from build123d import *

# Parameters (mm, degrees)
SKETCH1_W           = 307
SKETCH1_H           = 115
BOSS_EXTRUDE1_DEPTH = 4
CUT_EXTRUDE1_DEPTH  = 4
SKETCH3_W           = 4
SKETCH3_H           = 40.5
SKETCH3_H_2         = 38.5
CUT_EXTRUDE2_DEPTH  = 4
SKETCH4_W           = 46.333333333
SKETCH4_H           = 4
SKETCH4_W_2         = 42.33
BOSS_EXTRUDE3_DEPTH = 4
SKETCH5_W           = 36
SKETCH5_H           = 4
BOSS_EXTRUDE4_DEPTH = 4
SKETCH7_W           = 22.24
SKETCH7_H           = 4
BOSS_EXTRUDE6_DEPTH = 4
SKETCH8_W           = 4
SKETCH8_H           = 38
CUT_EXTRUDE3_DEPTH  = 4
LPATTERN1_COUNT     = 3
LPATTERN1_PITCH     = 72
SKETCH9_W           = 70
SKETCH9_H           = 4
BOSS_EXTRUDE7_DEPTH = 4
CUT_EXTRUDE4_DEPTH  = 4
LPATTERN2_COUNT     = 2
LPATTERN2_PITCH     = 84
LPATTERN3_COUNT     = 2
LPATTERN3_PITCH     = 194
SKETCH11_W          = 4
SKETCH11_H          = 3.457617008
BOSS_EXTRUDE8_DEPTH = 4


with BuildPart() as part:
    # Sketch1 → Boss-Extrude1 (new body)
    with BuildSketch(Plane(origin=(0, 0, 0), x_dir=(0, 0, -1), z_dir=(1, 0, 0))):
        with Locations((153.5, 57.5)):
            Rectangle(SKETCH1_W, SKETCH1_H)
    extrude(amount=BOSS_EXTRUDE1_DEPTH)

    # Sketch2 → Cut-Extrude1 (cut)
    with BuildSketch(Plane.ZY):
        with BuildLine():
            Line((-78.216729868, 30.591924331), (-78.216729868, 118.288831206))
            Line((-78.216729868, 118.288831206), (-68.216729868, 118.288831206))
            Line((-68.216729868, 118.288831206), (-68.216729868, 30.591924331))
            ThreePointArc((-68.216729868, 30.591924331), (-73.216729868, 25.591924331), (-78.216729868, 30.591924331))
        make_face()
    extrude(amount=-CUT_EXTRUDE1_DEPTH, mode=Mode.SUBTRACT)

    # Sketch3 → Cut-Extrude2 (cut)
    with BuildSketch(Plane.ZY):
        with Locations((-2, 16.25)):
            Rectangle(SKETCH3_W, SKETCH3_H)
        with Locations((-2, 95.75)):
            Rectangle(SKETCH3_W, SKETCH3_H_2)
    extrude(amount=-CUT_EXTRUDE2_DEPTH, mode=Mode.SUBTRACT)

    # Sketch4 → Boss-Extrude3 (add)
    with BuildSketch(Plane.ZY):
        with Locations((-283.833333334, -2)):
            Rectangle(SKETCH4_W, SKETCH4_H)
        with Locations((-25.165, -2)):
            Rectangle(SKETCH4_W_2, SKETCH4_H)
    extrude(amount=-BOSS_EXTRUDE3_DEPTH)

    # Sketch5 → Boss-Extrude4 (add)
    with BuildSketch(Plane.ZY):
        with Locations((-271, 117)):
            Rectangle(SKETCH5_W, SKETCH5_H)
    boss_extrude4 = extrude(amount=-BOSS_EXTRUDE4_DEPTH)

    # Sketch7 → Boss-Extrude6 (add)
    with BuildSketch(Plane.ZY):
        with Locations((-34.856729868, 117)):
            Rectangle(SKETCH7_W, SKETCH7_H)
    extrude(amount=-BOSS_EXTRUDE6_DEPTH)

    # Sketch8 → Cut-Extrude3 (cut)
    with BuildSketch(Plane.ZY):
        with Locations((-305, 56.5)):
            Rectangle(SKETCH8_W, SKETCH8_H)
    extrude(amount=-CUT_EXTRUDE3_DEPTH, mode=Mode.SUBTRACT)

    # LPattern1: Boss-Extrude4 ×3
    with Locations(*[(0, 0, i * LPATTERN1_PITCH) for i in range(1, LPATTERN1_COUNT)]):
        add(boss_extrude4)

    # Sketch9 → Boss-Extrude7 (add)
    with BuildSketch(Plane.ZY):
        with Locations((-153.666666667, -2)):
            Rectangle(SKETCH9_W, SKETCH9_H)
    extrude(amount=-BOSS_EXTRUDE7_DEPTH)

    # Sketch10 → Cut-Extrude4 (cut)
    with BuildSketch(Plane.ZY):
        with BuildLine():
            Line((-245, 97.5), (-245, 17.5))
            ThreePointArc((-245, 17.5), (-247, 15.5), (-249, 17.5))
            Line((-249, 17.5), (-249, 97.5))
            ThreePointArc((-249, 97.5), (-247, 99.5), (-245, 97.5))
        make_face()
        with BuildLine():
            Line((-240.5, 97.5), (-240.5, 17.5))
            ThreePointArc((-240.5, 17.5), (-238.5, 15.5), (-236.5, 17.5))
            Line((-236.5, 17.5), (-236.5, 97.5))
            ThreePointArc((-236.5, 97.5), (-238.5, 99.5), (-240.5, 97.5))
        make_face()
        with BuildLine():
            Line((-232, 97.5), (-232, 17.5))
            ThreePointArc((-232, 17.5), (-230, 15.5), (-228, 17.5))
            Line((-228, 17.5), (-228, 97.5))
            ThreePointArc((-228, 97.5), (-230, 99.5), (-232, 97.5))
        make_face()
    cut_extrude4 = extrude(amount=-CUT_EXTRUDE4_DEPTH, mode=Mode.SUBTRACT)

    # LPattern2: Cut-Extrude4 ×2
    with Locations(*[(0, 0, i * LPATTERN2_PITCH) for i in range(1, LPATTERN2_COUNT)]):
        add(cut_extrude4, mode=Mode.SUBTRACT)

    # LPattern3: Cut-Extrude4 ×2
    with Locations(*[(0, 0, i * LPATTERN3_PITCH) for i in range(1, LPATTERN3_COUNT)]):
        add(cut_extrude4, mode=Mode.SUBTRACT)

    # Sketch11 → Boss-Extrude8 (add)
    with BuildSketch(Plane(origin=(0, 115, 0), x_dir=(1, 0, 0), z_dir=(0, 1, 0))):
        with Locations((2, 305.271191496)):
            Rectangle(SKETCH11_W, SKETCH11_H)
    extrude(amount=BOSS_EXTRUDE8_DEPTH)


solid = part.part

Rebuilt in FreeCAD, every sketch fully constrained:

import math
import FreeCAD as App
import Part
import Sketcher
from FreeCAD import Vector

doc = App.newDocument("Part")
body = doc.addObject("PartDesign::Body", "Body")

sketch1 = body.newObject("Sketcher::SketchObject", "Sketch")
sketch1.AttachmentSupport = (doc.getObject("YZ_Plane"), [""])
sketch1.MapMode = "FlatFace"
sketch1.addGeometry(Part.LineSegment(Vector(115, 0, 0), Vector(0, 0, 0)), False)
sketch1.addGeometry(Part.LineSegment(Vector(0, 0, 0), Vector(0, -307, 0)), False)
sketch1.addGeometry(Part.LineSegment(Vector(0, -307, 0), Vector(115, -307, 0)), False)
sketch1.addGeometry(Part.LineSegment(Vector(115, -307, 0), Vector(115, 0, 0)), False)
sketch1.addConstraint(Sketcher.Constraint("Coincident", 0, 2, 1, 1))
sketch1.addConstraint(Sketcher.Constraint("Coincident", 1, 2, 2, 1))
sketch1.addConstraint(Sketcher.Constraint("Coincident", 2, 2, 3, 1))
sketch1.addConstraint(Sketcher.Constraint("Coincident", 3, 2, 0, 1))
sketch1.addConstraint(Sketcher.Constraint("Horizontal", 0))
sketch1.addConstraint(Sketcher.Constraint("Vertical", 1))
sketch1.addConstraint(Sketcher.Constraint("Horizontal", 2))
sketch1.addConstraint(Sketcher.Constraint("Vertical", 3))
sketch1.addConstraint(Sketcher.Constraint("Coincident", 0, 2, -1, 1))
sketch1.addConstraint(Sketcher.Constraint("DistanceX", 0, 2, 0, 1, 115.0))
sketch1.addConstraint(Sketcher.Constraint("DistanceY", 1, 2, 1, 1, 307.0))
pad1 = body.newObject("PartDesign::Pad", "Pad")
pad1.Profile = sketch1
pad1.Length = 4

sketch2 = body.newObject("Sketcher::SketchObject", "Sketch001")
sketch2.AttachmentSupport = (doc.getObject("YZ_Plane"), [""])
sketch2.MapMode = "FlatFace"
sketch2.addGeometry(Part.LineSegment(Vector(118, -78, 0), Vector(31, -78, 0)), False)
sketch2.addGeometry(Part.ArcOfCircle(Part.Circle(Vector(31, -73, 0), Vector(0, 0, 1), 5), math.radians(90), math.radians(270)), False)
sketch2.addGeometry(Part.LineSegment(Vector(31, -68, 0), Vector(118, -68, 0)), False)
sketch2.addGeometry(Part.LineSegment(Vector(118, -68, 0), Vector(118, -78, 0)), False)
sketch2.addConstraint(Sketcher.Constraint("Tangent", 0, 2, 1, 2))
sketch2.addConstraint(Sketcher.Constraint("Tangent", 1, 1, 2, 1))
sketch2.addConstraint(Sketcher.Constraint("Coincident", 2, 2, 3, 1))
sketch2.addConstraint(Sketcher.Constraint("Coincident", 3, 2, 0, 1))
sketch2.addConstraint(Sketcher.Constraint("Horizontal", 0))
sketch2.addConstraint(Sketcher.Constraint("Horizontal", 2))
sketch2.addConstraint(Sketcher.Constraint("Vertical", 3))
sketch2.addConstraint(Sketcher.Constraint("Radius", 1, 5.0))
sketch2.addConstraint(Sketcher.Constraint("DistanceX", 0, 2, 0, 1, 87.696907))
sketch2.addConstraint(Sketcher.Constraint("DistanceY", 1, 3, -1, 1, 73.21673))
sketch2.addConstraint(Sketcher.Constraint("DistanceX", -1, 1, 2, 2, 118.288831))
pocket1 = body.newObject("PartDesign::Pocket", "Pocket")
pocket1.Profile = sketch2
pocket1.Length = 4
pocket1.Reversed = True

sketch3 = body.newObject("Sketcher::SketchObject", "Sketch002")
sketch3.AttachmentSupport = (doc.getObject("YZ_Plane"), [""])
sketch3.MapMode = "FlatFace"
sketch3.addGeometry(Part.LineSegment(Vector(36.5, -4, 0), Vector(-4, -4, 0)), False)
sketch3.addGeometry(Part.LineSegment(Vector(-4, -4, 0), Vector(-4, 0, 0)), False)
sketch3.addGeometry(Part.LineSegment(Vector(-4, 0, 0), Vector(36.5, 0, 0)), False)
sketch3.addGeometry(Part.LineSegment(Vector(36.5, 0, 0), Vector(36.5, -4, 0)), False)
sketch3.addGeometry(Part.LineSegment(Vector(115, -4, 0), Vector(76.5, -4, 0)), False)
sketch3.addGeometry(Part.LineSegment(Vector(76.5, -4, 0), Vector(76.5, 0, 0)), False)
sketch3.addGeometry(Part.LineSegment(Vector(76.5, 0, 0), Vector(115, 0, 0)), False)
sketch3.addGeometry(Part.LineSegment(Vector(115, 0, 0), Vector(115, -4, 0)), False)
sketch3.addConstraint(Sketcher.Constraint("Coincident", 0, 2, 1, 1))
sketch3.addConstraint(Sketcher.Constraint("Coincident", 1, 2, 2, 1))
sketch3.addConstraint(Sketcher.Constraint("Coincident", 2, 2, 3, 1))
sketch3.addConstraint(Sketcher.Constraint("Coincident", 3, 2, 0, 1))
sketch3.addConstraint(Sketcher.Constraint("Coincident", 4, 2, 5, 1))
sketch3.addConstraint(Sketcher.Constraint("Coincident", 5, 2, 6, 1))
sketch3.addConstraint(Sketcher.Constraint("Coincident", 6, 2, 7, 1))
sketch3.addConstraint(Sketcher.Constraint("Coincident", 7, 2, 4, 1))
sketch3.addConstraint(Sketcher.Constraint("Horizontal", 0))
sketch3.addConstraint(Sketcher.Constraint("Vertical", 1))
sketch3.addConstraint(Sketcher.Constraint("Horizontal", 2))
sketch3.addConstraint(Sketcher.Constraint("Vertical", 3))
sketch3.addConstraint(Sketcher.Constraint("Horizontal", 4))
sketch3.addConstraint(Sketcher.Constraint("Vertical", 5))
sketch3.addConstraint(Sketcher.Constraint("Horizontal", 6))
sketch3.addConstraint(Sketcher.Constraint("Vertical", 7))
sketch3.addConstraint(Sketcher.Constraint("PointOnObject", 1, 2, -1))
sketch3.addConstraint(Sketcher.Constraint("PointOnObject", 5, 2, -1))
sketch3.addConstraint(Sketcher.Constraint("Horizontal", 3, 2, 4, 2))
sketch3.addConstraint(Sketcher.Constraint("DistanceY", 1, 1, 1, 2, 4.0))
sketch3.addConstraint(Sketcher.Constraint("DistanceX", 0, 2, 0, 1, 40.5))
sketch3.addConstraint(Sketcher.Constraint("DistanceX", 4, 2, 4, 1, 38.5))
sketch3.addConstraint(Sketcher.Constraint("DistanceX", 0, 2, -1, 1, 4.0))
sketch3.addConstraint(Sketcher.Constraint("DistanceX", -1, 1, 6, 2, 115.0))
pocket2 = body.newObject("PartDesign::Pocket", "Pocket001")
pocket2.Profile = sketch3
pocket2.Length = 4
pocket2.Reversed = True

sketch4 = body.newObject("Sketcher::SketchObject", "Sketch003")
sketch4.AttachmentSupport = (doc.getObject("YZ_Plane"), [""])
sketch4.MapMode = "FlatFace"
sketch4.addGeometry(Part.LineSegment(Vector(0, -307, 0), Vector(-4, -307, 0)), False)
sketch4.addGeometry(Part.LineSegment(Vector(-4, -307, 0), Vector(-4, -260.7, 0)), False)
sketch4.addGeometry(Part.LineSegment(Vector(-4, -260.7, 0), Vector(0, -260.7, 0)), False)
sketch4.addGeometry(Part.LineSegment(Vector(0, -260.7, 0), Vector(0, -307, 0)), False)
sketch4.addGeometry(Part.LineSegment(Vector(0, -46.3, 0), Vector(-4, -46.3, 0)), False)
sketch4.addGeometry(Part.LineSegment(Vector(-4, -46.3, 0), Vector(-4, -4, 0)), False)
sketch4.addGeometry(Part.LineSegment(Vector(-4, -4, 0), Vector(0, -4, 0)), False)
sketch4.addGeometry(Part.LineSegment(Vector(0, -4, 0), Vector(0, -46.3, 0)), False)
sketch4.addConstraint(Sketcher.Constraint("Coincident", 0, 2, 1, 1))
sketch4.addConstraint(Sketcher.Constraint("Coincident", 1, 2, 2, 1))
sketch4.addConstraint(Sketcher.Constraint("Coincident", 2, 2, 3, 1))
sketch4.addConstraint(Sketcher.Constraint("Coincident", 3, 2, 0, 1))
sketch4.addConstraint(Sketcher.Constraint("Coincident", 4, 2, 5, 1))
sketch4.addConstraint(Sketcher.Constraint("Coincident", 5, 2, 6, 1))
sketch4.addConstraint(Sketcher.Constraint("Coincident", 6, 2, 7, 1))
sketch4.addConstraint(Sketcher.Constraint("Coincident", 7, 2, 4, 1))
sketch4.addConstraint(Sketcher.Constraint("Horizontal", 0))
sketch4.addConstraint(Sketcher.Constraint("Vertical", 1))
sketch4.addConstraint(Sketcher.Constraint("Horizontal", 2))
sketch4.addConstraint(Sketcher.Constraint("Vertical", 3))
sketch4.addConstraint(Sketcher.Constraint("Horizontal", 4))
sketch4.addConstraint(Sketcher.Constraint("Vertical", 5))
sketch4.addConstraint(Sketcher.Constraint("Horizontal", 6))
sketch4.addConstraint(Sketcher.Constraint("Vertical", 7))
sketch4.addConstraint(Sketcher.Constraint("PointOnObject", 2, 2, -2))
sketch4.addConstraint(Sketcher.Constraint("PointOnObject", 6, 2, -2))
sketch4.addConstraint(Sketcher.Constraint("Vertical", 1, 2, 4, 2))
sketch4.addConstraint(Sketcher.Constraint("DistanceX", 0, 2, 0, 1, 4.0))
sketch4.addConstraint(Sketcher.Constraint("DistanceY", 0, 2, -1, 1, 307.0))
sketch4.addConstraint(Sketcher.Constraint("DistanceY", 5, 2, -1, 1, 4.0))
sketch4.addConstraint(Sketcher.Constraint("DistanceY", 5, 1, 5, 2, 42.33))
sketch4.addConstraint(Sketcher.Constraint("DistanceY", 1, 1, 1, 2, 46.333333))
pad2 = body.newObject("PartDesign::Pad", "Pad001")
pad2.Profile = sketch4
pad2.Length = 4

sketch5 = body.newObject("Sketcher::SketchObject", "Sketch004")
sketch5.AttachmentSupport = (doc.getObject("YZ_Plane"), [""])
sketch5.MapMode = "FlatFace"
sketch5.addGeometry(Part.LineSegment(Vector(119, -289, 0), Vector(115, -289, 0)), False)
sketch5.addGeometry(Part.LineSegment(Vector(115, -289, 0), Vector(115, -253, 0)), False)
sketch5.addGeometry(Part.LineSegment(Vector(115, -253, 0), Vector(119, -253, 0)), False)
sketch5.addGeometry(Part.LineSegment(Vector(119, -253, 0), Vector(119, -289, 0)), False)
sketch5.addConstraint(Sketcher.Constraint("Coincident", 0, 2, 1, 1))
sketch5.addConstraint(Sketcher.Constraint("Coincident", 1, 2, 2, 1))
sketch5.addConstraint(Sketcher.Constraint("Coincident", 2, 2, 3, 1))
sketch5.addConstraint(Sketcher.Constraint("Coincident", 3, 2, 0, 1))
sketch5.addConstraint(Sketcher.Constraint("Horizontal", 0))
sketch5.addConstraint(Sketcher.Constraint("Vertical", 1))
sketch5.addConstraint(Sketcher.Constraint("Horizontal", 2))
sketch5.addConstraint(Sketcher.Constraint("Vertical", 3))
sketch5.addConstraint(Sketcher.Constraint("DistanceX", 0, 2, 0, 1, 4.0))
sketch5.addConstraint(Sketcher.Constraint("DistanceY", 1, 1, 1, 2, 36.0))
sketch5.addConstraint(Sketcher.Constraint("DistanceX", -1, 1, 0, 2, 115.0))
sketch5.addConstraint(Sketcher.Constraint("DistanceY", 0, 2, -1, 1, 289.0))
pad3 = body.newObject("PartDesign::Pad", "Pad002")
pad3.Profile = sketch5
pad3.Length = 4

sketch6 = body.newObject("Sketcher::SketchObject", "Sketch005")
sketch6.AttachmentSupport = (doc.getObject("YZ_Plane"), [""])
sketch6.MapMode = "FlatFace"
sketch6.addGeometry(Part.LineSegment(Vector(119, -46, 0), Vector(115, -46, 0)), False)
sketch6.addGeometry(Part.LineSegment(Vector(115, -46, 0), Vector(115, -23.7, 0)), False)
sketch6.addGeometry(Part.LineSegment(Vector(115, -23.7, 0), Vector(119, -23.7, 0)), False)
sketch6.addGeometry(Part.LineSegment(Vector(119, -23.7, 0), Vector(119, -46, 0)), False)
sketch6.addConstraint(Sketcher.Constraint("Coincident", 0, 2, 1, 1))
sketch6.addConstraint(Sketcher.Constraint("Coincident", 1, 2, 2, 1))
sketch6.addConstraint(Sketcher.Constraint("Coincident", 2, 2, 3, 1))
sketch6.addConstraint(Sketcher.Constraint("Coincident", 3, 2, 0, 1))
sketch6.addConstraint(Sketcher.Constraint("Horizontal", 0))
sketch6.addConstraint(Sketcher.Constraint("Vertical", 1))
sketch6.addConstraint(Sketcher.Constraint("Horizontal", 2))
sketch6.addConstraint(Sketcher.Constraint("Vertical", 3))
sketch6.addConstraint(Sketcher.Constraint("DistanceX", 0, 2, 0, 1, 4.0))
sketch6.addConstraint(Sketcher.Constraint("DistanceX", -1, 1, 0, 2, 115.0))
sketch6.addConstraint(Sketcher.Constraint("DistanceY", 1, 1, 1, 2, 22.24))
sketch6.addConstraint(Sketcher.Constraint("DistanceY", 0, 2, -1, 1, 45.97673))
pad4 = body.newObject("PartDesign::Pad", "Pad003")
pad4.Profile = sketch6
pad4.Length = 4

sketch7 = body.newObject("Sketcher::SketchObject", "Sketch006")
sketch7.AttachmentSupport = (doc.getObject("YZ_Plane"), [""])
sketch7.MapMode = "FlatFace"
sketch7.addGeometry(Part.LineSegment(Vector(75.5, -307, 0), Vector(37.5, -307, 0)), False)
sketch7.addGeometry(Part.LineSegment(Vector(37.5, -307, 0), Vector(37.5, -303, 0)), False)
sketch7.addGeometry(Part.LineSegment(Vector(37.5, -303, 0), Vector(75.5, -303, 0)), False)
sketch7.addGeometry(Part.LineSegment(Vector(75.5, -303, 0), Vector(75.5, -307, 0)), False)
sketch7.addConstraint(Sketcher.Constraint("Coincident", 0, 2, 1, 1))
sketch7.addConstraint(Sketcher.Constraint("Coincident", 1, 2, 2, 1))
sketch7.addConstraint(Sketcher.Constraint("Coincident", 2, 2, 3, 1))
sketch7.addConstraint(Sketcher.Constraint("Coincident", 3, 2, 0, 1))
sketch7.addConstraint(Sketcher.Constraint("Horizontal", 0))
sketch7.addConstraint(Sketcher.Constraint("Vertical", 1))
sketch7.addConstraint(Sketcher.Constraint("Horizontal", 2))
sketch7.addConstraint(Sketcher.Constraint("Vertical", 3))
sketch7.addConstraint(Sketcher.Constraint("DistanceX", 0, 2, 0, 1, 38.0))
sketch7.addConstraint(Sketcher.Constraint("DistanceY", 1, 1, 1, 2, 4.0))
sketch7.addConstraint(Sketcher.Constraint("DistanceY", 0, 2, -1, 1, 307.0))
sketch7.addConstraint(Sketcher.Constraint("DistanceX", -1, 1, 0, 2, 37.5))
pocket3 = body.newObject("PartDesign::Pocket", "Pocket002")
pocket3.Profile = sketch7
pocket3.Length = 4
pocket3.Reversed = True
doc.recompute()

linearpattern = body.newObject("PartDesign::LinearPattern", "LinearPattern")
linearpattern.Originals = [pad3]
linearpattern.Direction = (doc.getObject("Z_Axis"), [""])
linearpattern.Mode = "offset"
linearpattern.Offset = 72
linearpattern.Occurrences = 3
body.Tip = linearpattern

sketch8 = body.newObject("Sketcher::SketchObject", "Sketch007")
sketch8.AttachmentSupport = (doc.getObject("YZ_Plane"), [""])
sketch8.MapMode = "FlatFace"
sketch8.addGeometry(Part.LineSegment(Vector(0, -188.7, 0), Vector(-4, -188.7, 0)), False)
sketch8.addGeometry(Part.LineSegment(Vector(-4, -188.7, 0), Vector(-4, -118.7, 0)), False)
sketch8.addGeometry(Part.LineSegment(Vector(-4, -118.7, 0), Vector(0, -118.7, 0)), False)
sketch8.addGeometry(Part.LineSegment(Vector(0, -118.7, 0), Vector(0, -188.7, 0)), False)
sketch8.addConstraint(Sketcher.Constraint("Coincident", 0, 2, 1, 1))
sketch8.addConstraint(Sketcher.Constraint("Coincident", 1, 2, 2, 1))
sketch8.addConstraint(Sketcher.Constraint("Coincident", 2, 2, 3, 1))
sketch8.addConstraint(Sketcher.Constraint("Coincident", 3, 2, 0, 1))
sketch8.addConstraint(Sketcher.Constraint("Horizontal", 0))
sketch8.addConstraint(Sketcher.Constraint("Vertical", 1))
sketch8.addConstraint(Sketcher.Constraint("Horizontal", 2))
sketch8.addConstraint(Sketcher.Constraint("Vertical", 3))
sketch8.addConstraint(Sketcher.Constraint("PointOnObject", 2, 2, -2))
sketch8.addConstraint(Sketcher.Constraint("DistanceX", 0, 2, 0, 1, 4.0))
sketch8.addConstraint(Sketcher.Constraint("DistanceY", 1, 1, 1, 2, 70.0))
sketch8.addConstraint(Sketcher.Constraint("DistanceY", 0, 2, -1, 1, 188.666667))
pad5 = body.newObject("PartDesign::Pad", "Pad004")
pad5.Profile = sketch8
pad5.Length = 4

sketch9 = body.newObject("Sketcher::SketchObject", "Sketch008")
sketch9.AttachmentSupport = (doc.getObject("YZ_Plane"), [""])
sketch9.MapMode = "FlatFace"
sketch9.addGeometry(Part.LineSegment(Vector(17.5, -245, 0), Vector(97.5, -245, 0)), False)
sketch9.addGeometry(Part.ArcOfCircle(Part.Circle(Vector(97.5, -247, 0), Vector(0, 0, 1), 2), math.radians(-90), math.radians(90)), False)
sketch9.addGeometry(Part.LineSegment(Vector(97.5, -249, 0), Vector(17.5, -249, 0)), False)
sketch9.addGeometry(Part.ArcOfCircle(Part.Circle(Vector(17.5, -247, 0), Vector(0, 0, 1), 2), math.radians(90), math.radians(270)), False)
sketch9.addGeometry(Part.LineSegment(Vector(97.5, -240.5, 0), Vector(17.5, -240.5, 0)), False)
sketch9.addGeometry(Part.ArcOfCircle(Part.Circle(Vector(17.5, -238.5, 0), Vector(0, 0, 1), 2), math.radians(90), math.radians(270)), False)
sketch9.addGeometry(Part.LineSegment(Vector(17.5, -236.5, 0), Vector(97.5, -236.5, 0)), False)
sketch9.addGeometry(Part.ArcOfCircle(Part.Circle(Vector(97.5, -238.5, 0), Vector(0, 0, 1), 2), math.radians(-90), math.radians(90)), False)
sketch9.addGeometry(Part.LineSegment(Vector(97.5, -232, 0), Vector(17.5, -232, 0)), False)
sketch9.addGeometry(Part.ArcOfCircle(Part.Circle(Vector(17.5, -230, 0), Vector(0, 0, 1), 2), math.radians(90), math.radians(270)), False)
sketch9.addGeometry(Part.LineSegment(Vector(17.5, -228, 0), Vector(97.5, -228, 0)), False)
sketch9.addGeometry(Part.ArcOfCircle(Part.Circle(Vector(97.5, -230, 0), Vector(0, 0, 1), 2), math.radians(-90), math.radians(90)), False)
sketch9.addConstraint(Sketcher.Constraint("Tangent", 0, 2, 1, 2))
sketch9.addConstraint(Sketcher.Constraint("Tangent", 1, 1, 2, 1))
sketch9.addConstraint(Sketcher.Constraint("Tangent", 2, 2, 3, 2))
sketch9.addConstraint(Sketcher.Constraint("Tangent", 3, 1, 0, 1))
sketch9.addConstraint(Sketcher.Constraint("Tangent", 4, 2, 5, 2))
sketch9.addConstraint(Sketcher.Constraint("Tangent", 5, 1, 6, 1))
sketch9.addConstraint(Sketcher.Constraint("Tangent", 6, 2, 7, 2))
sketch9.addConstraint(Sketcher.Constraint("Tangent", 7, 1, 4, 1))
sketch9.addConstraint(Sketcher.Constraint("Tangent", 8, 2, 9, 2))
sketch9.addConstraint(Sketcher.Constraint("Tangent", 9, 1, 10, 1))
sketch9.addConstraint(Sketcher.Constraint("Tangent", 10, 2, 11, 2))
sketch9.addConstraint(Sketcher.Constraint("Tangent", 11, 1, 8, 1))
sketch9.addConstraint(Sketcher.Constraint("Horizontal", 0))
sketch9.addConstraint(Sketcher.Constraint("Horizontal", 2))
sketch9.addConstraint(Sketcher.Constraint("Horizontal", 4))
sketch9.addConstraint(Sketcher.Constraint("Horizontal", 6))
sketch9.addConstraint(Sketcher.Constraint("Horizontal", 8))
sketch9.addConstraint(Sketcher.Constraint("Horizontal", 10))
sketch9.addConstraint(Sketcher.Constraint("Equal", 3, 5))
sketch9.addConstraint(Sketcher.Constraint("Equal", 7, 9))
sketch9.addConstraint(Sketcher.Constraint("Vertical", 3, 3, 5, 3))
sketch9.addConstraint(Sketcher.Constraint("Vertical", 1, 3, 7, 3))
sketch9.addConstraint(Sketcher.Constraint("Vertical", 5, 3, 9, 3))
sketch9.addConstraint(Sketcher.Constraint("Vertical", 7, 3, 11, 3))
sketch9.addConstraint(Sketcher.Constraint("Radius", 1, 2.0))
sketch9.addConstraint(Sketcher.Constraint("DistanceX", 0, 1, 0, 2, 80.0))
sketch9.addConstraint(Sketcher.Constraint("DistanceY", 1, 3, -1, 1, 247.0))
sketch9.addConstraint(Sketcher.Constraint("DistanceY", 9, 3, -1, 1, 230.0))
sketch9.addConstraint(Sketcher.Constraint("DistanceX", -1, 1, 1, 3, 97.5))
sketch9.addConstraint(Sketcher.Constraint("DistanceY", 5, 3, -1, 1, 238.5))
pocket4 = body.newObject("PartDesign::Pocket", "Pocket003")
pocket4.Profile = sketch9
pocket4.Length = 4
pocket4.Reversed = True
doc.recompute()

linearpattern2 = body.newObject("PartDesign::LinearPattern", "LinearPattern001")
linearpattern2.Originals = [pocket4]
linearpattern2.Direction = (doc.getObject("Z_Axis"), [""])
linearpattern2.Mode = "offset"
linearpattern2.Offset = 84
linearpattern2.Occurrences = 2
body.Tip = linearpattern2
doc.recompute()

linearpattern3 = body.newObject("PartDesign::LinearPattern", "LinearPattern002")
linearpattern3.Originals = [pocket4]
linearpattern3.Direction = (doc.getObject("Z_Axis"), [""])
linearpattern3.Mode = "offset"
linearpattern3.Offset = 194
linearpattern3.Occurrences = 2
body.Tip = linearpattern3

sketch10 = body.newObject("Sketcher::SketchObject", "Sketch009")
sketch10.AttachmentSupport = (doc.getObject("XZ_Plane"), [""])
sketch10.MapMode = "FlatFace"
sketch10.AttachmentOffset = App.Placement(Vector(0, 0, -115), App.Rotation())
sketch10.addGeometry(Part.LineSegment(Vector(0, -307, 0), Vector(0, -303.5, 0)), False)
sketch10.addGeometry(Part.LineSegment(Vector(0, -303.5, 0), Vector(4, -303.5, 0)), False)
sketch10.addGeometry(Part.LineSegment(Vector(4, -303.5, 0), Vector(4, -307, 0)), False)
sketch10.addGeometry(Part.LineSegment(Vector(4, -307, 0), Vector(0, -307, 0)), False)
sketch10.addConstraint(Sketcher.Constraint("Coincident", 0, 2, 1, 1))
sketch10.addConstraint(Sketcher.Constraint("Coincident", 1, 2, 2, 1))
sketch10.addConstraint(Sketcher.Constraint("Coincident", 2, 2, 3, 1))
sketch10.addConstraint(Sketcher.Constraint("Coincident", 3, 2, 0, 1))
sketch10.addConstraint(Sketcher.Constraint("Vertical", 0))
sketch10.addConstraint(Sketcher.Constraint("Horizontal", 1))
sketch10.addConstraint(Sketcher.Constraint("Vertical", 2))
sketch10.addConstraint(Sketcher.Constraint("Horizontal", 3))
sketch10.addConstraint(Sketcher.Constraint("PointOnObject", 0, 2, -2))
sketch10.addConstraint(Sketcher.Constraint("DistanceX", 1, 1, 1, 2, 4.0))
sketch10.addConstraint(Sketcher.Constraint("DistanceY", 2, 2, -1, 1, 307.0))
sketch10.addConstraint(Sketcher.Constraint("DistanceY", 0, 1, 0, 2, 3.457617))
pad6 = body.newObject("PartDesign::Pad", "Pad005")
pad6.Profile = sketch10
pad6.Length = 4
pad6.Reversed = True

doc.recompute()
